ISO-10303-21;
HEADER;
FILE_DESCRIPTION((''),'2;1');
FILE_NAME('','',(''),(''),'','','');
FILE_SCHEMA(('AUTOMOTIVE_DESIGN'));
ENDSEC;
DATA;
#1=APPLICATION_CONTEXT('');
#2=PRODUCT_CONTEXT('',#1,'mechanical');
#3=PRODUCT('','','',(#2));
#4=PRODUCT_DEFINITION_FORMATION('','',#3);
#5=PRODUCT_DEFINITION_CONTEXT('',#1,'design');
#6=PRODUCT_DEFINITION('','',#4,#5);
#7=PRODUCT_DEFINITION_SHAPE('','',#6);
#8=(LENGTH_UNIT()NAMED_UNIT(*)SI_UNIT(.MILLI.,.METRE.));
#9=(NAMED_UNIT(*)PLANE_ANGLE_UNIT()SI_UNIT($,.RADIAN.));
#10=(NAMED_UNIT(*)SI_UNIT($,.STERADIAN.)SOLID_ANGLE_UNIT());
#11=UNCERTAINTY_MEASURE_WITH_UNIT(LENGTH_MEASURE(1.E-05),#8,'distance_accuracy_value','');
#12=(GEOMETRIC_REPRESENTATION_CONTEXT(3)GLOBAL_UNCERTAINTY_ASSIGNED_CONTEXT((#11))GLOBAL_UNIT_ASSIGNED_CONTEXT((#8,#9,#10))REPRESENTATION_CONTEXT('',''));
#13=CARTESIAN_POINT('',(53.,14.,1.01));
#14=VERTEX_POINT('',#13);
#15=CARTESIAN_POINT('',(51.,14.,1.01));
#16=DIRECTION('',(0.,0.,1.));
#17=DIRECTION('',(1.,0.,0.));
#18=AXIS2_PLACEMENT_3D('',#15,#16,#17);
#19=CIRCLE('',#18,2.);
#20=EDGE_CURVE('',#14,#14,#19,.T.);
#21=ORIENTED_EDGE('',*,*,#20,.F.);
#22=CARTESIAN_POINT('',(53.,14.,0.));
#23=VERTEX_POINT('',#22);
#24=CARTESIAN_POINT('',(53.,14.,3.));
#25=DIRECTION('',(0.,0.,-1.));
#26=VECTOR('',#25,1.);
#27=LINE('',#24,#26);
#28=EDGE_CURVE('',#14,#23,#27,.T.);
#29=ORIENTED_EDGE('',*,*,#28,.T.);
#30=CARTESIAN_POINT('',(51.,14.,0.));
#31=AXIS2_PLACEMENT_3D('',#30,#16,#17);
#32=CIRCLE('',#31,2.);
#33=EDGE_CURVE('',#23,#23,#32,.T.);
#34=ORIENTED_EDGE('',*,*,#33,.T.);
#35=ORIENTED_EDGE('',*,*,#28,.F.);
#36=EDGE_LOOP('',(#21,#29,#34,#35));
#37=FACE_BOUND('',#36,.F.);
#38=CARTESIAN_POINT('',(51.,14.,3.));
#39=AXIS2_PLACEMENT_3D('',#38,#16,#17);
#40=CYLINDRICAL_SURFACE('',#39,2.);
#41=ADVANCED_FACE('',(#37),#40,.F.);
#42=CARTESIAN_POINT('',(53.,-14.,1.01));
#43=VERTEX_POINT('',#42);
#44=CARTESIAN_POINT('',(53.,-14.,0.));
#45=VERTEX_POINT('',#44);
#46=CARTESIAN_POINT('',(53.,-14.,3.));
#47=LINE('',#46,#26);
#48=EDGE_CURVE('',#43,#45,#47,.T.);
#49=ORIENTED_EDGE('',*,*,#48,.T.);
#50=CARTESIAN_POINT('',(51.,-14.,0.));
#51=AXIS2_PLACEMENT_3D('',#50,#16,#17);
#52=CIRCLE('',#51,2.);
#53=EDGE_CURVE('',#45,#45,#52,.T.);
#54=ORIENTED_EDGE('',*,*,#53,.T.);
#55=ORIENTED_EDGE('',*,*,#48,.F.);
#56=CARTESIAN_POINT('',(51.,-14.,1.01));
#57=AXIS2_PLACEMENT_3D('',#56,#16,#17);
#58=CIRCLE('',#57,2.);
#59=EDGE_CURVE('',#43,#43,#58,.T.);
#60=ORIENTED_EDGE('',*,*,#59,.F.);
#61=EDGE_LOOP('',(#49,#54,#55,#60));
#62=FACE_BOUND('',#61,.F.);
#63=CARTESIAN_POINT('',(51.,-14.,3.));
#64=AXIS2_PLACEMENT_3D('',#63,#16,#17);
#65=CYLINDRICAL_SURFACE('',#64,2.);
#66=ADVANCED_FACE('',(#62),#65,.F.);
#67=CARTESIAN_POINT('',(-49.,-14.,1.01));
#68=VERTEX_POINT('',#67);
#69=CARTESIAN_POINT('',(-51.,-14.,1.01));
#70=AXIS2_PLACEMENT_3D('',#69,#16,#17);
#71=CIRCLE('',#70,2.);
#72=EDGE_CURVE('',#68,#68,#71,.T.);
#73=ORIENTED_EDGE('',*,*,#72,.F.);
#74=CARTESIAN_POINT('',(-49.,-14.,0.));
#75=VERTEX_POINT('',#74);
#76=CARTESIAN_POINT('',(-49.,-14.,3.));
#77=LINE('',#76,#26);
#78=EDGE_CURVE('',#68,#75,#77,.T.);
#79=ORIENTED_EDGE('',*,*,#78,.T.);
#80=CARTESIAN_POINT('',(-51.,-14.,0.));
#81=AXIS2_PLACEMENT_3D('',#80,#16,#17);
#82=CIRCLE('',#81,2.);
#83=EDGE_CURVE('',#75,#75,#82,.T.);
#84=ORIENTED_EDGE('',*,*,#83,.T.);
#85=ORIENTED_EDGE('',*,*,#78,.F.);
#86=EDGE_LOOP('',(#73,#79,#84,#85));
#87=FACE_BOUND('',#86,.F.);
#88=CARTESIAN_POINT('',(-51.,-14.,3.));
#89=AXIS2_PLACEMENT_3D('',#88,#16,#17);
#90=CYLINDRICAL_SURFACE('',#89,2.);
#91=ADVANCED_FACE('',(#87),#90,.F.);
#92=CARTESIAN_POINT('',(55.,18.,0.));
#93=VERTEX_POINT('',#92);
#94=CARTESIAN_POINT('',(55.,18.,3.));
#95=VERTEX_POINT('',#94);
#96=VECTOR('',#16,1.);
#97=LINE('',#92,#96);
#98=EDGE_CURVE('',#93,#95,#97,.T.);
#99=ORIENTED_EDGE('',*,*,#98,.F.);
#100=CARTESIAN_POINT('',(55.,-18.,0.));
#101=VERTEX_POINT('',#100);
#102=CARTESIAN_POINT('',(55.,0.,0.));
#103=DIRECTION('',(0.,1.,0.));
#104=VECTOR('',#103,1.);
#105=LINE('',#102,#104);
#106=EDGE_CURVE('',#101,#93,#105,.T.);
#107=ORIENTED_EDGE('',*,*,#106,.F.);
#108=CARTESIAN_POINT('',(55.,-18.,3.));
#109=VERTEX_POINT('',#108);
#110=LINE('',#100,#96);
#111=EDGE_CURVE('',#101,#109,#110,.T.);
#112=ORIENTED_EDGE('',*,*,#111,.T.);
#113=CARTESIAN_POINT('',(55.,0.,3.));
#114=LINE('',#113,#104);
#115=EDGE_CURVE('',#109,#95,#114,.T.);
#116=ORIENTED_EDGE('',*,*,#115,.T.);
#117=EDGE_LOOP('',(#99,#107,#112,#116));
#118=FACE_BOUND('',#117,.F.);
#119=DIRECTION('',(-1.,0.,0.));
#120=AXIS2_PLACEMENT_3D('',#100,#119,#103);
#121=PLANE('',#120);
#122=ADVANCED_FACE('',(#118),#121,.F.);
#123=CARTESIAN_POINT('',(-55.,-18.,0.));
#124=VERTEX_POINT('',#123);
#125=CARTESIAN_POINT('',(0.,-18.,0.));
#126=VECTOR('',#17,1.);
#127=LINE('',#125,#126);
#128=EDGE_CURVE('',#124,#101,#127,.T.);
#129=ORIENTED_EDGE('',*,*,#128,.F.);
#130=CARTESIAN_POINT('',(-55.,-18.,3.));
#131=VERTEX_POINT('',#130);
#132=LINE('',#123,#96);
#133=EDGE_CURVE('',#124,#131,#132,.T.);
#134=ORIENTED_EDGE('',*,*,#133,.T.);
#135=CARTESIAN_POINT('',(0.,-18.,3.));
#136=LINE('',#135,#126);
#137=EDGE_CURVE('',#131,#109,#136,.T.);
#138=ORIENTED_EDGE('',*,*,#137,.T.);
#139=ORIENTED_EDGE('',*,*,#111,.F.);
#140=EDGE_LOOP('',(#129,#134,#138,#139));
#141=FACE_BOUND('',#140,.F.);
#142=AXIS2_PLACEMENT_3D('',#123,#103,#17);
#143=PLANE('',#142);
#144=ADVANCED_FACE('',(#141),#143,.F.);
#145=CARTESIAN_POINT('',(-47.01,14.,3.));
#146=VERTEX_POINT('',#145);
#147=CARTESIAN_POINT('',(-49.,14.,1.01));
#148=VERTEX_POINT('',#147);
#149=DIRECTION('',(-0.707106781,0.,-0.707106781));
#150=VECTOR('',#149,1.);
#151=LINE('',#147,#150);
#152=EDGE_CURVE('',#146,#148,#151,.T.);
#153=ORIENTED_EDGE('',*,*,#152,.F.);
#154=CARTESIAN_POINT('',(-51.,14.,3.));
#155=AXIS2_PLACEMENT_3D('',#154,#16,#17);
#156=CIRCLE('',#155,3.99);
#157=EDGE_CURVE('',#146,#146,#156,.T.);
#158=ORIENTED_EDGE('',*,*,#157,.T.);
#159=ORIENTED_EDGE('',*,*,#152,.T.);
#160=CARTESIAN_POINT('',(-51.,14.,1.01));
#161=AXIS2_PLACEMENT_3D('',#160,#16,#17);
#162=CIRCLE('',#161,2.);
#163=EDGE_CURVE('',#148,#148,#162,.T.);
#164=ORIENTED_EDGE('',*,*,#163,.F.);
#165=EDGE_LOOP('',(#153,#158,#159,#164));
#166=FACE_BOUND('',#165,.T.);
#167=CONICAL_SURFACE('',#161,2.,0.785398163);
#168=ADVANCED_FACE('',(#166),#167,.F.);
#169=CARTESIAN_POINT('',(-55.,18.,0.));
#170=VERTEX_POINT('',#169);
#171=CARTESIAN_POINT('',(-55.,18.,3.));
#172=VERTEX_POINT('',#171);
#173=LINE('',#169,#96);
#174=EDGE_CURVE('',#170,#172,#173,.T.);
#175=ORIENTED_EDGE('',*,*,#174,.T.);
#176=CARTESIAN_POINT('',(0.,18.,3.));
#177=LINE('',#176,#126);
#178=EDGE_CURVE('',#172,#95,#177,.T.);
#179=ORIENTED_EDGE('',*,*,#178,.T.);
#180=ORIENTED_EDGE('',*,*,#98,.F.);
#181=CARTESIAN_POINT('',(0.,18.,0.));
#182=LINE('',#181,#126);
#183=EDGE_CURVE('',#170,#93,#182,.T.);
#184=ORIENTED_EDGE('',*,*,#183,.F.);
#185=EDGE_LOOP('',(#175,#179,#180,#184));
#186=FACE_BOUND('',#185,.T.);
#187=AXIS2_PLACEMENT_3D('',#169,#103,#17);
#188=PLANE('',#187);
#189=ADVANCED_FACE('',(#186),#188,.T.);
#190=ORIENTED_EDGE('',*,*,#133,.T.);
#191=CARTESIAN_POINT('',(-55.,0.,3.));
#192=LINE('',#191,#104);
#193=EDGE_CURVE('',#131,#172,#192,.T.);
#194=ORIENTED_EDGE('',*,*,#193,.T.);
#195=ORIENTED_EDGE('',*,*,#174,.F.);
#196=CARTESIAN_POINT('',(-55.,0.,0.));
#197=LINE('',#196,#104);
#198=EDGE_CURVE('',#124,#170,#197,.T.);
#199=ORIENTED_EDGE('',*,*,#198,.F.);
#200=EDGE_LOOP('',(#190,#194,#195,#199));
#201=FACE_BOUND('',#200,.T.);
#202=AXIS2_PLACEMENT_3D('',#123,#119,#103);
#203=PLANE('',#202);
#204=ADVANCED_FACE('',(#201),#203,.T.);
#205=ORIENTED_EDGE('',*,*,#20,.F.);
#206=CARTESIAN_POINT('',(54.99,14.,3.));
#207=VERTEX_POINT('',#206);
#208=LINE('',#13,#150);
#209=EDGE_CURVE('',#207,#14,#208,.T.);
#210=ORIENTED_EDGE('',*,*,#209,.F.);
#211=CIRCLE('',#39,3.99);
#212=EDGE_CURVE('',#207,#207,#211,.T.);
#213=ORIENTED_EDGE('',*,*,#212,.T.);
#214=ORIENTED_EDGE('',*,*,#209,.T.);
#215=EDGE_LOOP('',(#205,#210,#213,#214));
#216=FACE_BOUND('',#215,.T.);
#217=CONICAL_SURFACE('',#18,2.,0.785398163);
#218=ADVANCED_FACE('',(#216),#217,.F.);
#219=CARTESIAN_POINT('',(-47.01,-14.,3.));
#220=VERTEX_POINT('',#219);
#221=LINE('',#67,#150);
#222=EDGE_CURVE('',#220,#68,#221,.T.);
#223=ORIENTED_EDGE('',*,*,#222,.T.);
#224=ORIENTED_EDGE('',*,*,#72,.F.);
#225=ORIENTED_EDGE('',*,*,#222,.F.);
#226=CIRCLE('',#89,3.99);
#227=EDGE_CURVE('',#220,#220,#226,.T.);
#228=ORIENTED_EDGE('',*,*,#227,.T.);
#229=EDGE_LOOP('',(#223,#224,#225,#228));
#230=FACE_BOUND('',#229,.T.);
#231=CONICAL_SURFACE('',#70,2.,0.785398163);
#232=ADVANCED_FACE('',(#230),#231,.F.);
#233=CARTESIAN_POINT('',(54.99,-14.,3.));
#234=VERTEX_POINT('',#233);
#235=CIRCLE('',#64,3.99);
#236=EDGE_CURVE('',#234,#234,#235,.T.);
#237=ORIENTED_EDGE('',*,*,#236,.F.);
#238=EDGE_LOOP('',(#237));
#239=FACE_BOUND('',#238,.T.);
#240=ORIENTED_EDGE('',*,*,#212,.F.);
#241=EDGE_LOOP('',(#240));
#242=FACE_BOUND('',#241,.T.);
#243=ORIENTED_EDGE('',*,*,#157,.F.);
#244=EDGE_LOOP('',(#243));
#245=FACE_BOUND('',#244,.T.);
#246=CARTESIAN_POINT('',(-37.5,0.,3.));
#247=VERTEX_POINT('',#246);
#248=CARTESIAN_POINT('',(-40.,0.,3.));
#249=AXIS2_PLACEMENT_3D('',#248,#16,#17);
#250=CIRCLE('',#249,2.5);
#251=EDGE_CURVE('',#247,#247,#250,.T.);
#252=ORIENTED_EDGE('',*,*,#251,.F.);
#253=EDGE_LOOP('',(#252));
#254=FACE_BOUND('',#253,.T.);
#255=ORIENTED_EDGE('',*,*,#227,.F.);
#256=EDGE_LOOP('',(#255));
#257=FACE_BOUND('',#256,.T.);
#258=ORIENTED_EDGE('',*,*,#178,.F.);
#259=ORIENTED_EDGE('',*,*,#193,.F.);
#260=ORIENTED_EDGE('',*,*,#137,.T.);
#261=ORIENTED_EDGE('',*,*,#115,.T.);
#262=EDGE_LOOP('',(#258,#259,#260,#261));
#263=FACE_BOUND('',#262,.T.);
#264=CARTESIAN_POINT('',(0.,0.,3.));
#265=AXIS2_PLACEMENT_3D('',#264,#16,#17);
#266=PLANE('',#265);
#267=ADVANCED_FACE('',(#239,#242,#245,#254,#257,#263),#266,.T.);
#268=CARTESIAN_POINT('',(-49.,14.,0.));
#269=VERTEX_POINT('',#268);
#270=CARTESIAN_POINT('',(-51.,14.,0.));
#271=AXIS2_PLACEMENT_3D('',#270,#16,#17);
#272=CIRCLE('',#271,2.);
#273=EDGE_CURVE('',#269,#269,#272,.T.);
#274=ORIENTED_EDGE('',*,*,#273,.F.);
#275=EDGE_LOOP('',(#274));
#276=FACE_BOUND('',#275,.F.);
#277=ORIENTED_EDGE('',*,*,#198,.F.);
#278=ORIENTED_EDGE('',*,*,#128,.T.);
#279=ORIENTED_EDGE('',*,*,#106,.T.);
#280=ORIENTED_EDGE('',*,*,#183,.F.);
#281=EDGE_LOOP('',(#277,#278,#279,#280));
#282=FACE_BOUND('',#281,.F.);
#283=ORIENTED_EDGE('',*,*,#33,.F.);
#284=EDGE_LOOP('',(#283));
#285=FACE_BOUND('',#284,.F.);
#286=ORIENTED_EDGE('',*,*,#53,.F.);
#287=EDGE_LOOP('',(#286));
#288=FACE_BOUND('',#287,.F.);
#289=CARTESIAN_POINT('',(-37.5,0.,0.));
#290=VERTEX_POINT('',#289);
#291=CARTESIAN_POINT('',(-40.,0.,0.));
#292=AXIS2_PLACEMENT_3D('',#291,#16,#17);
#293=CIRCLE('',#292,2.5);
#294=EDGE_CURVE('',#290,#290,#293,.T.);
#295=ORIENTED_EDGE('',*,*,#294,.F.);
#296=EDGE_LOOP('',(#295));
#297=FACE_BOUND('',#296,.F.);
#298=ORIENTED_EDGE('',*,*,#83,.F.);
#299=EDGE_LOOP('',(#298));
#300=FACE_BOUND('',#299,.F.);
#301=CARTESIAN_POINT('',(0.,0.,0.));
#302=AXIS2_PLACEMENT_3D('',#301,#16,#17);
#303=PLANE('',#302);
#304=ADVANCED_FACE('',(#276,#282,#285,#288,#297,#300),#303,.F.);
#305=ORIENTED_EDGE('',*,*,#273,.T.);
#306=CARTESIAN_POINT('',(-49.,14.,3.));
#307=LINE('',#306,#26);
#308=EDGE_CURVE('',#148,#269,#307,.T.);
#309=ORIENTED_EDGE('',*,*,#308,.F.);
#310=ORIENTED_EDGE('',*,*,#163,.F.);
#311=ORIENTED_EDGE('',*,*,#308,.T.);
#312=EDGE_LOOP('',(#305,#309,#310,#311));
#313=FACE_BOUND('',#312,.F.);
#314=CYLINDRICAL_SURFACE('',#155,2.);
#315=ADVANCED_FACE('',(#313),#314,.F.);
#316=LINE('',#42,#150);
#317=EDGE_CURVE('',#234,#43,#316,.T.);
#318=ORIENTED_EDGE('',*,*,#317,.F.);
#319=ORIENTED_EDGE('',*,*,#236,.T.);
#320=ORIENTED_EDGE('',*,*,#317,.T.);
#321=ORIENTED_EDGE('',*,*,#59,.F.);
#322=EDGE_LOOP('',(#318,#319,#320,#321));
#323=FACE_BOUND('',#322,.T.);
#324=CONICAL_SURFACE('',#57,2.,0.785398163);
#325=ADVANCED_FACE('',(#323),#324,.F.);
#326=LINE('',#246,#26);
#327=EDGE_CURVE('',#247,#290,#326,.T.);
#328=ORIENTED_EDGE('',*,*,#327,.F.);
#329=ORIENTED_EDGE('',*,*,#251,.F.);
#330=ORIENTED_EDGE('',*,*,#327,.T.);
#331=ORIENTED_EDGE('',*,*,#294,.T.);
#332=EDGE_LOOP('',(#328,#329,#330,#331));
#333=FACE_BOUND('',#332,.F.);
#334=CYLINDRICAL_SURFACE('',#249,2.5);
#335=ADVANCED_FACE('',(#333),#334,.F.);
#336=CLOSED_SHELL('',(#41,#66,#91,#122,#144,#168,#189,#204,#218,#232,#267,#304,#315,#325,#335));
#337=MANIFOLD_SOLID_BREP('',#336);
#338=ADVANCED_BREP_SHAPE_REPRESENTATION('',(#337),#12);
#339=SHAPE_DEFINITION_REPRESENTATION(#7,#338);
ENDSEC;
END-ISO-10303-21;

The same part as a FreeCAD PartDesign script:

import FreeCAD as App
import Part
import Sketcher


def edges_at(feature, points):
    """Names of the edges that pass closest to the given points."""
    edges = feature.Shape.Edges
    near = lambda p: min(range(len(edges)), key=lambda i: edges[i].distToShape(Part.Vertex(*p))[0])
    return sorted({f"Edge{near(p) + 1}" for p in points})


def add_polygon(sketch, points):
    """Adds a closed chain of lines whose ends are joined by coincident constraints."""
    first, n = sketch.GeometryCount, len(points)
    for a, b in zip(points, points[1:] + points[:1]):
        sketch.addGeometry(Part.LineSegment(App.Vector(*a, 0), App.Vector(*b, 0)), False)
    for i in range(n):
        sketch.addConstraint(Sketcher.Constraint("Coincident", first + i, 2, first + (i + 1) % n, 1))

doc = App.newDocument("Part")
params = doc.addObject("Spreadsheet::Sheet", "Params")
for row, (alias, value) in enumerate([
    ("sketch1_width", "110 mm"),
    ("sketch1_height", "36 mm"),
    ("pad1_length", "3 mm"),
    ("sketch2_diameter", "4 mm"),
    ("pocket1_length", "3 mm"),
    ("chamfer_size", "1.99 mm"),
    ("sketch3_diameter", "5 mm"),
    ("pocket2_length", "3 mm"),
], start=1):
    params.set(f"A{row}", alias)
    params.set(f"B{row}", "=" + value)
    params.setAlias(f"B{row}", alias)

body = doc.addObject("PartDesign::Body", "Body")

sketch1 = doc.addObject("Sketcher::SketchObject", "Sketch")
body.addObject(sketch1)
sketch1.AttachmentSupport = (doc.XY_Plane, [""])
sketch1.MapMode = "FlatFace"
add_polygon(sketch1, [(-55, 18), (-55, -18), (55, -18), (55, 18)])
sketch1.addConstraint([
    Sketcher.Constraint("Vertical", 0),
    Sketcher.Constraint("Horizontal", 1),
    Sketcher.Constraint("Vertical", 2),
    Sketcher.Constraint("Horizontal", 3),
    Sketcher.Constraint("Symmetric", 0, 2, 2, 2, -1, 1),
    Sketcher.Constraint("DistanceX", 1, 1, 1, 2, 110.0),
    Sketcher.Constraint("DistanceY", 0, 2, 0, 1, 36.0),
])
sketch1.setExpression("Constraints[9]", "Params.sketch1_width")
sketch1.setExpression("Constraints[10]", "Params.sketch1_height")
pad1 = doc.addObject("PartDesign::Pad", "Pad")
body.addObject(pad1)
pad1.Profile = sketch1
pad1.setExpression("Length", "Params.pad1_length")

sketch2 = doc.addObject("Sketcher::SketchObject", "Sketch001")
body.addObject(sketch2)
sketch2.AttachmentSupport = (doc.XY_Plane, [""])
sketch2.MapMode = "FlatFace"
sketch2.AttachmentOffset = App.Placement(App.Vector(0, 0, 3), App.Rotation())
sketch2.addGeometry([
    Part.Circle(App.Vector(-51, 14, 0), App.Vector(0, 0, 1), 2),
    Part.Circle(App.Vector(-51, -14, 0), App.Vector(0, 0, 1), 2),
    Part.Circle(App.Vector(51, -14, 0), App.Vector(0, 0, 1), 2),
    Part.Circle(App.Vector(51, 14, 0), App.Vector(0, 0, 1), 2),
], False)
sketch2.addConstraint([
    Sketcher.Constraint("Equal", 0, 1),
    Sketcher.Constraint("Equal", 1, 2),
    Sketcher.Constraint("Equal", 2, 3),
    Sketcher.Constraint("Symmetric", 0, 3, 2, 3, -1, 1),
    Sketcher.Constraint("Symmetric", 1, 3, 3, 3, -1, 1),
    Sketcher.Constraint("Symmetric", 1, 3, 2, 3, -2),
    Sketcher.Constraint("Diameter", 0, 4.0),
    Sketcher.Constraint("DistanceX", 0, 3, -1, 1, 51.0),
    Sketcher.Constraint("DistanceY", -1, 1, 0, 3, 14.0),
])
sketch2.setExpression("Constraints[6]", "Params.sketch2_diameter")
pocket1 = doc.addObject("PartDesign::Pocket", "Pocket")
body.addObject(pocket1)
pocket1.Profile = sketch2
pocket1.setExpression("Length", "Params.pocket1_length")
doc.recompute()

chamfer = doc.addObject("PartDesign::Chamfer", "Chamfer")
body.addObject(chamfer)
chamfer.Base = (pocket1, edges_at(pocket1, [
    (-53, 14, 3),
    (-53, -14, 3),
    (49, -14, 3),
    (49, 14, 3),
]))
chamfer.setExpression("Size", "Params.chamfer_size")

sketch3 = doc.addObject("Sketcher::SketchObject", "Sketch002")
body.addObject(sketch3)
sketch3.AttachmentSupport = (doc.XY_Plane, [""])
sketch3.MapMode = "FlatFace"
sketch3.AttachmentOffset = App.Placement(App.Vector(0, 0, 3), App.Rotation())
sketch3.addGeometry(Part.Circle(App.Vector(-40, 0, 0), App.Vector(0, 0, 1), 2.5), False)
sketch3.addConstraint([
    Sketcher.Constraint("PointOnObject", 0, 3, -1),
    Sketcher.Constraint("Diameter", 0, 5.0),
    Sketcher.Constraint("DistanceX", 0, 3, -1, 1, 40.0),
])
sketch3.setExpression("Constraints[1]", "Params.sketch3_diameter")
pocket2 = doc.addObject("PartDesign::Pocket", "Pocket001")
body.addObject(pocket2)
pocket2.Profile = sketch3
pocket2.setExpression("Length", "Params.pocket2_length")

doc.recompute()
